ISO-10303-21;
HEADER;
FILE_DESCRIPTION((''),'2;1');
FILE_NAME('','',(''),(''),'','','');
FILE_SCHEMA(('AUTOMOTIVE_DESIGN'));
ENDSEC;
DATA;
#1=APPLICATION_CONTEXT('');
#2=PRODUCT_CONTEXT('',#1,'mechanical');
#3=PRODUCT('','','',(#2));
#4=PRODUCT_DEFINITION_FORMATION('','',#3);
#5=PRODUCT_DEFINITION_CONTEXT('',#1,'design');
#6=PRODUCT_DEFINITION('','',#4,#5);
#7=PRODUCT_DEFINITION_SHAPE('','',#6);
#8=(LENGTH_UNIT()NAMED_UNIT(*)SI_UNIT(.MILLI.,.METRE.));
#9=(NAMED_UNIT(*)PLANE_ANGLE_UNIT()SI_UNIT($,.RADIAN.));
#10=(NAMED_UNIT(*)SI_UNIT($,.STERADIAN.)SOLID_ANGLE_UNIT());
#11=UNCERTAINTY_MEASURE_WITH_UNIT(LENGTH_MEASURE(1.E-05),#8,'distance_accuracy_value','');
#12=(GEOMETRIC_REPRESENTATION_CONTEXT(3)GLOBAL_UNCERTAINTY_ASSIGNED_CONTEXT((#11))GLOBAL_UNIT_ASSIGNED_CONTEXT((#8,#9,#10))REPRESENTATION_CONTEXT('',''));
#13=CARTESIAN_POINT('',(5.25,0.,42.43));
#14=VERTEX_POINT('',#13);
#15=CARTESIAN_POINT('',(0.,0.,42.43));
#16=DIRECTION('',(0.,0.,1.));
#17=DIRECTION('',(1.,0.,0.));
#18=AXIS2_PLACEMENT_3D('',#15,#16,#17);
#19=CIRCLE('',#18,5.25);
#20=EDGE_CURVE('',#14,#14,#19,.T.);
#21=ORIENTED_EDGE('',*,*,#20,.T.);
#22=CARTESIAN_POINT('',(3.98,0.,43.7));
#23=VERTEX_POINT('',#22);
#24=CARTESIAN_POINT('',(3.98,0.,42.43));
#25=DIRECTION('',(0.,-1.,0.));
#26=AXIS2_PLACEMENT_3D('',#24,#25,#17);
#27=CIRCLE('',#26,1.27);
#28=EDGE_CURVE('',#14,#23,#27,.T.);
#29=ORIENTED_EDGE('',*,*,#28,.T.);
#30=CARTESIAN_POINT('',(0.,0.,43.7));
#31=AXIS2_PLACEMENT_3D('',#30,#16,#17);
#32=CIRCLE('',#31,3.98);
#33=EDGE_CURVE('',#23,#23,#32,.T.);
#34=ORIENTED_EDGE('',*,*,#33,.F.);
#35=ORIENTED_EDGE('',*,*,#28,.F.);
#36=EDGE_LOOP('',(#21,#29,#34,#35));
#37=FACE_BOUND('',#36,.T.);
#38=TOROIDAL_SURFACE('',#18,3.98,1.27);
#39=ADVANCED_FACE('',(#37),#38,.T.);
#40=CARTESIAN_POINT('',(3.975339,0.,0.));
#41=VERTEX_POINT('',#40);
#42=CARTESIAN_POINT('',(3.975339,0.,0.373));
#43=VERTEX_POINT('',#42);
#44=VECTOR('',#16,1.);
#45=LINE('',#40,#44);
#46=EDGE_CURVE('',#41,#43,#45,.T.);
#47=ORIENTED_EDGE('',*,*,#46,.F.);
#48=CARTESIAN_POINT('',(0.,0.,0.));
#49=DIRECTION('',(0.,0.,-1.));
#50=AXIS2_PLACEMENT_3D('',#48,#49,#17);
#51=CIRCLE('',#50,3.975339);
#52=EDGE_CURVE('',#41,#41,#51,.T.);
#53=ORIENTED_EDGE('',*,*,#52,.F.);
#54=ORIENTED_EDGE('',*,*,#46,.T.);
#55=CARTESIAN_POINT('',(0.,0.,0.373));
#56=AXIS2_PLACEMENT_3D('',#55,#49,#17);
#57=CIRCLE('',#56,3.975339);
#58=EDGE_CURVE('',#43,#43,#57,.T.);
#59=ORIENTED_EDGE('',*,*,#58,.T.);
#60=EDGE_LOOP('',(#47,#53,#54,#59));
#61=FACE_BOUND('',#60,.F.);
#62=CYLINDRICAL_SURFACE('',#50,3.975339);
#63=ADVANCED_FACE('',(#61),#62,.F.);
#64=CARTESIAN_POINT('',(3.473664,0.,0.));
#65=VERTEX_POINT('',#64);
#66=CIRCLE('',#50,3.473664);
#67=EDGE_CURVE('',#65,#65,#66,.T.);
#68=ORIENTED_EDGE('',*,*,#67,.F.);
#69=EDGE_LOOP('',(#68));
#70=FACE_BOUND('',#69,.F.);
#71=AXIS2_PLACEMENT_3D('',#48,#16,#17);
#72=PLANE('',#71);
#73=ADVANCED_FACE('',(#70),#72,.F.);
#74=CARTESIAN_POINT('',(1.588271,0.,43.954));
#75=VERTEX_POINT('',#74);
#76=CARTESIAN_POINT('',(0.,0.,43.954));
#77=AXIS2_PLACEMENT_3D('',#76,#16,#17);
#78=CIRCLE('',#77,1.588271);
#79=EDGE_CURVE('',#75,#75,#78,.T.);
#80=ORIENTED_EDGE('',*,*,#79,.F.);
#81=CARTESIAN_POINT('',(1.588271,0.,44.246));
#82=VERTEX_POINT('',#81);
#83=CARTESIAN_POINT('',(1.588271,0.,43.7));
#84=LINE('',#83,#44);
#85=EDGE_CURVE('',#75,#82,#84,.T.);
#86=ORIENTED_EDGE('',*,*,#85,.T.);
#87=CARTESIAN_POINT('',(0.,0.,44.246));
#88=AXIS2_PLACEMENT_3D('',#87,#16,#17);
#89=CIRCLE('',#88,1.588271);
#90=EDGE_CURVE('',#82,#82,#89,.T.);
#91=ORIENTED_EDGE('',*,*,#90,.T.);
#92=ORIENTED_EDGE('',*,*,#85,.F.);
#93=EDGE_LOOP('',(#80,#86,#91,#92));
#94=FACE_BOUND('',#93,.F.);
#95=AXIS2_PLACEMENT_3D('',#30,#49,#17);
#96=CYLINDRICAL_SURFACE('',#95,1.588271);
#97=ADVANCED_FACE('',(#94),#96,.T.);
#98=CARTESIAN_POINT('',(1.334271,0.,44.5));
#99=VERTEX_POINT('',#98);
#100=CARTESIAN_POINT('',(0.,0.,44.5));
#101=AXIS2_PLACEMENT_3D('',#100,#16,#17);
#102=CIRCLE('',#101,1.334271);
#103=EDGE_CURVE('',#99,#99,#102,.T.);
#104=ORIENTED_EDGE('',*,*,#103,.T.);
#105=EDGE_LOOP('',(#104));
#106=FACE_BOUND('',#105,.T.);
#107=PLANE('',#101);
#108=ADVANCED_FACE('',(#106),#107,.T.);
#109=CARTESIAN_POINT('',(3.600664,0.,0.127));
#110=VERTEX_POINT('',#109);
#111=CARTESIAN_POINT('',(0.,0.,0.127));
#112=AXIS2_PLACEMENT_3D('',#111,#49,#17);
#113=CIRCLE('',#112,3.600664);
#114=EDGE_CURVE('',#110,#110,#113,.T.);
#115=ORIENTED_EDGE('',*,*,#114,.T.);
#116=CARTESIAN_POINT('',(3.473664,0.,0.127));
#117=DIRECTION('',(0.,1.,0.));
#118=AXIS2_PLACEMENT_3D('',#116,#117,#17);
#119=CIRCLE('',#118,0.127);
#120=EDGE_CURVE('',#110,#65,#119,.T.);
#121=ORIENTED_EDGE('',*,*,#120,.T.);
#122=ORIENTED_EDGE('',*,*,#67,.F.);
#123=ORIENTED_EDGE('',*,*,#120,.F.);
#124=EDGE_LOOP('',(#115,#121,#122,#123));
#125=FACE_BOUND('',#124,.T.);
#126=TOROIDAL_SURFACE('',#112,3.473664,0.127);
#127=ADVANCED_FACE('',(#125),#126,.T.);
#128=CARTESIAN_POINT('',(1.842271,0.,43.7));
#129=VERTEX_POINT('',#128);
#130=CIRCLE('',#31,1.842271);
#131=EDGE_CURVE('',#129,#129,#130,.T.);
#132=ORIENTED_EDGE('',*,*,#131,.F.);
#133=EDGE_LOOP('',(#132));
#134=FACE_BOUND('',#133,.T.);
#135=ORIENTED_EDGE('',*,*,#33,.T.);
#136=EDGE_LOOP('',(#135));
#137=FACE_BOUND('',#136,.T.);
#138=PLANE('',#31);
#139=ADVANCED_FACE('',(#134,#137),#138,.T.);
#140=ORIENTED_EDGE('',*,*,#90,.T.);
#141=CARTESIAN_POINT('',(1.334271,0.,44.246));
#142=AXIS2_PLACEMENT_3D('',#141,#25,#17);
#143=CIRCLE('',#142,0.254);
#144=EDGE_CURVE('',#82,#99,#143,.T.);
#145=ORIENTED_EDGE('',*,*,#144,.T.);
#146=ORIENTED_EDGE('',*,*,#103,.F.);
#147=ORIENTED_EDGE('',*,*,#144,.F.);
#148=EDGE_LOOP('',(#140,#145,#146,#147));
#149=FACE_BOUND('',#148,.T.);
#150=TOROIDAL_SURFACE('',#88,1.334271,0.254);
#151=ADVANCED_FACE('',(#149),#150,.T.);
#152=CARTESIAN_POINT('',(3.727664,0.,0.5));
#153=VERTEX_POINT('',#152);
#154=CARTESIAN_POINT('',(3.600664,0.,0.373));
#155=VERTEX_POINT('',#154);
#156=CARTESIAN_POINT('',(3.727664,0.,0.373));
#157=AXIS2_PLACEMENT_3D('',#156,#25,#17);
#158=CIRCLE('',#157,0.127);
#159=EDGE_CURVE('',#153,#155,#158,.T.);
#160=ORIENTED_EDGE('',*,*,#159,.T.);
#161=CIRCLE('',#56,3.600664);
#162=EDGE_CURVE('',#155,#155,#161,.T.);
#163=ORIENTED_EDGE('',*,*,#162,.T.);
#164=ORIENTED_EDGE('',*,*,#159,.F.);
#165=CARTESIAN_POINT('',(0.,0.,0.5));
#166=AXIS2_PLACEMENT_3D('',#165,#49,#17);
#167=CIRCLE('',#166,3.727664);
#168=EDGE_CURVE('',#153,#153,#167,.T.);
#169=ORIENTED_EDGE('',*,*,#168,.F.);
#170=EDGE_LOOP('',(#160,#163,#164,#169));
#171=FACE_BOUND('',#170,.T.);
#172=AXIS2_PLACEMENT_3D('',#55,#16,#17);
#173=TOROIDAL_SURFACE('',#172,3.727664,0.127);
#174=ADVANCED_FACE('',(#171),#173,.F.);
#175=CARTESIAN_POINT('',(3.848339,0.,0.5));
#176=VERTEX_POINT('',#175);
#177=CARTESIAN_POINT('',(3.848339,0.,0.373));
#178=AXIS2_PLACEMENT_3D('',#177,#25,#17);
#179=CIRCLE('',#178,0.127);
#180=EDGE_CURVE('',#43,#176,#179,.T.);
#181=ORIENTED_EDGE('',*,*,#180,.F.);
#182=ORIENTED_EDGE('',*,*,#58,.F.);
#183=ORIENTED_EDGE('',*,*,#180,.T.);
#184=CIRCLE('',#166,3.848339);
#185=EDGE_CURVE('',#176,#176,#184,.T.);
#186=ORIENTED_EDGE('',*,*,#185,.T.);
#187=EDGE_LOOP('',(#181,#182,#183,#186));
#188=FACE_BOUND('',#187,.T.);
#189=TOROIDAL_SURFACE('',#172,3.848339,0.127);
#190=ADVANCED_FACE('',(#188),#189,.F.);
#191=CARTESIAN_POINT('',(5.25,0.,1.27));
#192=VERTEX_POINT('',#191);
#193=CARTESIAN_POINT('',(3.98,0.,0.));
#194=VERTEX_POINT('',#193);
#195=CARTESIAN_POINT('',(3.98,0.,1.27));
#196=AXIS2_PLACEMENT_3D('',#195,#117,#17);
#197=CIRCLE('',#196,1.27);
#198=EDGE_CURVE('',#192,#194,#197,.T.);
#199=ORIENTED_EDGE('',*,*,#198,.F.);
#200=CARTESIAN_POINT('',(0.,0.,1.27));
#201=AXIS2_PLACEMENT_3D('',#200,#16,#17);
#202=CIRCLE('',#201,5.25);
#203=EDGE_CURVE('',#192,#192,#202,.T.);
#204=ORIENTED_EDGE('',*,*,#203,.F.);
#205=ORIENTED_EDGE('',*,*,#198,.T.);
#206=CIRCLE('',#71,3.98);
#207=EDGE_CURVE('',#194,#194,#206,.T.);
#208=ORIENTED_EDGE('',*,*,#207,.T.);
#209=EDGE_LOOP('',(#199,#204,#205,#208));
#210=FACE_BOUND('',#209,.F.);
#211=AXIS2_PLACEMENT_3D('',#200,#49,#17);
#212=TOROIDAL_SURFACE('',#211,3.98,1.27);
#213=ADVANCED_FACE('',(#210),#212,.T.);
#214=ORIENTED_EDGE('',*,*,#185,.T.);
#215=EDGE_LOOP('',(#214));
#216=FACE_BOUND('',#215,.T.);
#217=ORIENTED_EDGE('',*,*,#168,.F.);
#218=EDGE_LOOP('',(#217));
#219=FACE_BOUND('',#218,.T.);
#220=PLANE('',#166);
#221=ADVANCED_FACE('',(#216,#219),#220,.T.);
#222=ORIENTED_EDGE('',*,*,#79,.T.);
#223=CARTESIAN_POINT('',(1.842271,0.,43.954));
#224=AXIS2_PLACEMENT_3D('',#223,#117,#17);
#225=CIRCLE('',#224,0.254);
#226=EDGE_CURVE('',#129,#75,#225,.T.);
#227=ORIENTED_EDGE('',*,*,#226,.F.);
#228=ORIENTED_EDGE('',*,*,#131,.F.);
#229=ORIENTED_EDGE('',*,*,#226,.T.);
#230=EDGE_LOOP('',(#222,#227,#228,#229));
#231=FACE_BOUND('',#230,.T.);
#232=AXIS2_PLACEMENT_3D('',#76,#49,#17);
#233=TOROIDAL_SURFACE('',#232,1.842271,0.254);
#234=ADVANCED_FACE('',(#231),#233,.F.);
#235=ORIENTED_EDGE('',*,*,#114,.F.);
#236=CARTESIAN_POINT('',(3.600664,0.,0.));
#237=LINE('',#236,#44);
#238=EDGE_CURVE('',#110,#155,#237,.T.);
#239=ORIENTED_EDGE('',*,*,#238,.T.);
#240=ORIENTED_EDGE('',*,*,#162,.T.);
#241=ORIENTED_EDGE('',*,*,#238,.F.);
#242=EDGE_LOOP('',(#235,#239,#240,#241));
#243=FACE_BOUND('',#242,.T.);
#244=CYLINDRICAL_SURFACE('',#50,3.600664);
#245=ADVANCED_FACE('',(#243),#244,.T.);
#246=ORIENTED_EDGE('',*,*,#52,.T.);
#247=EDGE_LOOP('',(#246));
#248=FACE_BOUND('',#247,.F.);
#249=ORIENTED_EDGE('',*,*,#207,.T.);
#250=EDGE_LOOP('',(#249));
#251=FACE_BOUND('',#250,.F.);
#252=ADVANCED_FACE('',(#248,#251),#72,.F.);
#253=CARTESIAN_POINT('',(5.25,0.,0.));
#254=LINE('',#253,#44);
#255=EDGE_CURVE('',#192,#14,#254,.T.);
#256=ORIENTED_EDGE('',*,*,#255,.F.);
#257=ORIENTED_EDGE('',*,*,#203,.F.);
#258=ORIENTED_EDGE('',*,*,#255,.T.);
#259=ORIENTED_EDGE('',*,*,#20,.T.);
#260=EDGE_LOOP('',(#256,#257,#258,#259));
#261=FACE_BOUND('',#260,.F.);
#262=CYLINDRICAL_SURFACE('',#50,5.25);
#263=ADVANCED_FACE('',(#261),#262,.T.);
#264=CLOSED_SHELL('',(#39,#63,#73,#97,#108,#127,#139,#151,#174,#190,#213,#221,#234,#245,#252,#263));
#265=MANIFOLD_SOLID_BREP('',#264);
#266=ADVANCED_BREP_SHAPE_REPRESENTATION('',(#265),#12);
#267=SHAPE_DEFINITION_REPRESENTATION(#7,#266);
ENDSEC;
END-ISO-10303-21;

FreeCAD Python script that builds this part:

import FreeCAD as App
import Part
import Sketcher
from FreeCAD import Vector


def edges_at(feature, points):
    """Names of the edges that pass closest to the given points."""
    edges = feature.Shape.Edges
    near = lambda p: min(range(len(edges)), key=lambda i: edges[i].distToShape(Part.Vertex(*p))[0])
    return sorted({f"Edge{near(p) + 1}" for p in points})

doc = App.newDocument("Part")
body = doc.addObject("PartDesign::Body", "Body")

# Sketch on XY plane
sketch1 = doc.addObject("Sketcher::SketchObject", "Sketch")
body.addObject(sketch1)
sketch1.AttachmentSupport = (doc.XY_Plane, [""])
sketch1.MapMode = "FlatFace"
sketch1.addGeometry(Part.Circle(Vector(0, 0, 0), Vector(0, 0, 1), 5), False)
sketch1.addConstraint([
    Sketcher.Constraint("Coincident", 0, 3, -1, 1),
    Sketcher.Constraint("Diameter", 0, 10.5),
])
pad1 = doc.addObject("PartDesign::Pad", "Pad")
body.addObject(pad1)
pad1.Profile = sketch1
pad1.Length = 43.7

# Sketch on XY plane
sketch2 = doc.addObject("Sketcher::SketchObject", "Sketch001")
body.addObject(sketch2)
sketch2.AttachmentSupport = (doc.XY_Plane, [""])
sketch2.MapMode = "FlatFace"
sketch2.AttachmentOffset = App.Placement(Vector(0, 0, 43.7), App.Rotation())
sketch2.addGeometry(Part.Circle(Vector(0, 0, 0), Vector(0, 0, 1), 1.6), False)
sketch2.addConstraint([
    Sketcher.Constraint("Coincident", 0, 3, -1, 1),
    Sketcher.Constraint("Diameter", 0, 3.176542),
])
pad2 = doc.addObject("PartDesign::Pad", "Pad001")
body.addObject(pad2)
pad2.Profile = sketch2
pad2.Length = 0.8
doc.recompute()

fillet = doc.addObject("PartDesign::Fillet", "Fillet")
body.addObject(fillet)
fillet.Base = (pad2, edges_at(pad2, [(-5.25, 0, 43.7), (-5.25, 0, 0)]))
fillet.Radius = 1.27
doc.recompute()

fillet2 = doc.addObject("PartDesign::Fillet", "Fillet001")
body.addObject(fillet2)
fillet2.Base = (fillet, edges_at(fillet, [(-1.588, 0, 44.5), (-3.98, 0, 43.7), (-1.588, 0, 43.7)]))
fillet2.Radius = 0.254

# Sketch on XY plane
sketch3 = doc.addObject("Sketcher::SketchObject", "Sketch002")
body.addObject(sketch3)
sketch3.AttachmentSupport = (doc.XY_Plane, [""])
sketch3.MapMode = "FlatFace"
sketch3.addGeometry([
    Part.Circle(Vector(0, 0, 0), Vector(0, 0, 1), 4),
    Part.Circle(Vector(0, 0, 0), Vector(0, 0, 1), 3.6),
], False)
sketch3.addConstraint([
    Sketcher.Constraint("Coincident", 0, 3, -1, 1),
    Sketcher.Constraint("Coincident", 1, 3, -1, 1),
    Sketcher.Constraint("Diameter", 0, 7.950677),
    Sketcher.Constraint("Diameter", 1, 7.201327),
])
pocket1 = doc.addObject("PartDesign::Pocket", "Pocket")
body.addObject(pocket1)
pocket1.Profile = sketch3
pocket1.Length = 0.5
pocket1.Reversed = True
doc.recompute()

fillet3 = doc.addObject("PartDesign::Fillet", "Fillet002")
body.addObject(fillet3)
fillet3.Base = (pocket1, edges_at(pocket1, [(-3.975, 0, 0.5), (-3.601, 0, 0.5), (-3.601, 0, 0)]))
fillet3.Radius = 0.127

doc.recompute()
